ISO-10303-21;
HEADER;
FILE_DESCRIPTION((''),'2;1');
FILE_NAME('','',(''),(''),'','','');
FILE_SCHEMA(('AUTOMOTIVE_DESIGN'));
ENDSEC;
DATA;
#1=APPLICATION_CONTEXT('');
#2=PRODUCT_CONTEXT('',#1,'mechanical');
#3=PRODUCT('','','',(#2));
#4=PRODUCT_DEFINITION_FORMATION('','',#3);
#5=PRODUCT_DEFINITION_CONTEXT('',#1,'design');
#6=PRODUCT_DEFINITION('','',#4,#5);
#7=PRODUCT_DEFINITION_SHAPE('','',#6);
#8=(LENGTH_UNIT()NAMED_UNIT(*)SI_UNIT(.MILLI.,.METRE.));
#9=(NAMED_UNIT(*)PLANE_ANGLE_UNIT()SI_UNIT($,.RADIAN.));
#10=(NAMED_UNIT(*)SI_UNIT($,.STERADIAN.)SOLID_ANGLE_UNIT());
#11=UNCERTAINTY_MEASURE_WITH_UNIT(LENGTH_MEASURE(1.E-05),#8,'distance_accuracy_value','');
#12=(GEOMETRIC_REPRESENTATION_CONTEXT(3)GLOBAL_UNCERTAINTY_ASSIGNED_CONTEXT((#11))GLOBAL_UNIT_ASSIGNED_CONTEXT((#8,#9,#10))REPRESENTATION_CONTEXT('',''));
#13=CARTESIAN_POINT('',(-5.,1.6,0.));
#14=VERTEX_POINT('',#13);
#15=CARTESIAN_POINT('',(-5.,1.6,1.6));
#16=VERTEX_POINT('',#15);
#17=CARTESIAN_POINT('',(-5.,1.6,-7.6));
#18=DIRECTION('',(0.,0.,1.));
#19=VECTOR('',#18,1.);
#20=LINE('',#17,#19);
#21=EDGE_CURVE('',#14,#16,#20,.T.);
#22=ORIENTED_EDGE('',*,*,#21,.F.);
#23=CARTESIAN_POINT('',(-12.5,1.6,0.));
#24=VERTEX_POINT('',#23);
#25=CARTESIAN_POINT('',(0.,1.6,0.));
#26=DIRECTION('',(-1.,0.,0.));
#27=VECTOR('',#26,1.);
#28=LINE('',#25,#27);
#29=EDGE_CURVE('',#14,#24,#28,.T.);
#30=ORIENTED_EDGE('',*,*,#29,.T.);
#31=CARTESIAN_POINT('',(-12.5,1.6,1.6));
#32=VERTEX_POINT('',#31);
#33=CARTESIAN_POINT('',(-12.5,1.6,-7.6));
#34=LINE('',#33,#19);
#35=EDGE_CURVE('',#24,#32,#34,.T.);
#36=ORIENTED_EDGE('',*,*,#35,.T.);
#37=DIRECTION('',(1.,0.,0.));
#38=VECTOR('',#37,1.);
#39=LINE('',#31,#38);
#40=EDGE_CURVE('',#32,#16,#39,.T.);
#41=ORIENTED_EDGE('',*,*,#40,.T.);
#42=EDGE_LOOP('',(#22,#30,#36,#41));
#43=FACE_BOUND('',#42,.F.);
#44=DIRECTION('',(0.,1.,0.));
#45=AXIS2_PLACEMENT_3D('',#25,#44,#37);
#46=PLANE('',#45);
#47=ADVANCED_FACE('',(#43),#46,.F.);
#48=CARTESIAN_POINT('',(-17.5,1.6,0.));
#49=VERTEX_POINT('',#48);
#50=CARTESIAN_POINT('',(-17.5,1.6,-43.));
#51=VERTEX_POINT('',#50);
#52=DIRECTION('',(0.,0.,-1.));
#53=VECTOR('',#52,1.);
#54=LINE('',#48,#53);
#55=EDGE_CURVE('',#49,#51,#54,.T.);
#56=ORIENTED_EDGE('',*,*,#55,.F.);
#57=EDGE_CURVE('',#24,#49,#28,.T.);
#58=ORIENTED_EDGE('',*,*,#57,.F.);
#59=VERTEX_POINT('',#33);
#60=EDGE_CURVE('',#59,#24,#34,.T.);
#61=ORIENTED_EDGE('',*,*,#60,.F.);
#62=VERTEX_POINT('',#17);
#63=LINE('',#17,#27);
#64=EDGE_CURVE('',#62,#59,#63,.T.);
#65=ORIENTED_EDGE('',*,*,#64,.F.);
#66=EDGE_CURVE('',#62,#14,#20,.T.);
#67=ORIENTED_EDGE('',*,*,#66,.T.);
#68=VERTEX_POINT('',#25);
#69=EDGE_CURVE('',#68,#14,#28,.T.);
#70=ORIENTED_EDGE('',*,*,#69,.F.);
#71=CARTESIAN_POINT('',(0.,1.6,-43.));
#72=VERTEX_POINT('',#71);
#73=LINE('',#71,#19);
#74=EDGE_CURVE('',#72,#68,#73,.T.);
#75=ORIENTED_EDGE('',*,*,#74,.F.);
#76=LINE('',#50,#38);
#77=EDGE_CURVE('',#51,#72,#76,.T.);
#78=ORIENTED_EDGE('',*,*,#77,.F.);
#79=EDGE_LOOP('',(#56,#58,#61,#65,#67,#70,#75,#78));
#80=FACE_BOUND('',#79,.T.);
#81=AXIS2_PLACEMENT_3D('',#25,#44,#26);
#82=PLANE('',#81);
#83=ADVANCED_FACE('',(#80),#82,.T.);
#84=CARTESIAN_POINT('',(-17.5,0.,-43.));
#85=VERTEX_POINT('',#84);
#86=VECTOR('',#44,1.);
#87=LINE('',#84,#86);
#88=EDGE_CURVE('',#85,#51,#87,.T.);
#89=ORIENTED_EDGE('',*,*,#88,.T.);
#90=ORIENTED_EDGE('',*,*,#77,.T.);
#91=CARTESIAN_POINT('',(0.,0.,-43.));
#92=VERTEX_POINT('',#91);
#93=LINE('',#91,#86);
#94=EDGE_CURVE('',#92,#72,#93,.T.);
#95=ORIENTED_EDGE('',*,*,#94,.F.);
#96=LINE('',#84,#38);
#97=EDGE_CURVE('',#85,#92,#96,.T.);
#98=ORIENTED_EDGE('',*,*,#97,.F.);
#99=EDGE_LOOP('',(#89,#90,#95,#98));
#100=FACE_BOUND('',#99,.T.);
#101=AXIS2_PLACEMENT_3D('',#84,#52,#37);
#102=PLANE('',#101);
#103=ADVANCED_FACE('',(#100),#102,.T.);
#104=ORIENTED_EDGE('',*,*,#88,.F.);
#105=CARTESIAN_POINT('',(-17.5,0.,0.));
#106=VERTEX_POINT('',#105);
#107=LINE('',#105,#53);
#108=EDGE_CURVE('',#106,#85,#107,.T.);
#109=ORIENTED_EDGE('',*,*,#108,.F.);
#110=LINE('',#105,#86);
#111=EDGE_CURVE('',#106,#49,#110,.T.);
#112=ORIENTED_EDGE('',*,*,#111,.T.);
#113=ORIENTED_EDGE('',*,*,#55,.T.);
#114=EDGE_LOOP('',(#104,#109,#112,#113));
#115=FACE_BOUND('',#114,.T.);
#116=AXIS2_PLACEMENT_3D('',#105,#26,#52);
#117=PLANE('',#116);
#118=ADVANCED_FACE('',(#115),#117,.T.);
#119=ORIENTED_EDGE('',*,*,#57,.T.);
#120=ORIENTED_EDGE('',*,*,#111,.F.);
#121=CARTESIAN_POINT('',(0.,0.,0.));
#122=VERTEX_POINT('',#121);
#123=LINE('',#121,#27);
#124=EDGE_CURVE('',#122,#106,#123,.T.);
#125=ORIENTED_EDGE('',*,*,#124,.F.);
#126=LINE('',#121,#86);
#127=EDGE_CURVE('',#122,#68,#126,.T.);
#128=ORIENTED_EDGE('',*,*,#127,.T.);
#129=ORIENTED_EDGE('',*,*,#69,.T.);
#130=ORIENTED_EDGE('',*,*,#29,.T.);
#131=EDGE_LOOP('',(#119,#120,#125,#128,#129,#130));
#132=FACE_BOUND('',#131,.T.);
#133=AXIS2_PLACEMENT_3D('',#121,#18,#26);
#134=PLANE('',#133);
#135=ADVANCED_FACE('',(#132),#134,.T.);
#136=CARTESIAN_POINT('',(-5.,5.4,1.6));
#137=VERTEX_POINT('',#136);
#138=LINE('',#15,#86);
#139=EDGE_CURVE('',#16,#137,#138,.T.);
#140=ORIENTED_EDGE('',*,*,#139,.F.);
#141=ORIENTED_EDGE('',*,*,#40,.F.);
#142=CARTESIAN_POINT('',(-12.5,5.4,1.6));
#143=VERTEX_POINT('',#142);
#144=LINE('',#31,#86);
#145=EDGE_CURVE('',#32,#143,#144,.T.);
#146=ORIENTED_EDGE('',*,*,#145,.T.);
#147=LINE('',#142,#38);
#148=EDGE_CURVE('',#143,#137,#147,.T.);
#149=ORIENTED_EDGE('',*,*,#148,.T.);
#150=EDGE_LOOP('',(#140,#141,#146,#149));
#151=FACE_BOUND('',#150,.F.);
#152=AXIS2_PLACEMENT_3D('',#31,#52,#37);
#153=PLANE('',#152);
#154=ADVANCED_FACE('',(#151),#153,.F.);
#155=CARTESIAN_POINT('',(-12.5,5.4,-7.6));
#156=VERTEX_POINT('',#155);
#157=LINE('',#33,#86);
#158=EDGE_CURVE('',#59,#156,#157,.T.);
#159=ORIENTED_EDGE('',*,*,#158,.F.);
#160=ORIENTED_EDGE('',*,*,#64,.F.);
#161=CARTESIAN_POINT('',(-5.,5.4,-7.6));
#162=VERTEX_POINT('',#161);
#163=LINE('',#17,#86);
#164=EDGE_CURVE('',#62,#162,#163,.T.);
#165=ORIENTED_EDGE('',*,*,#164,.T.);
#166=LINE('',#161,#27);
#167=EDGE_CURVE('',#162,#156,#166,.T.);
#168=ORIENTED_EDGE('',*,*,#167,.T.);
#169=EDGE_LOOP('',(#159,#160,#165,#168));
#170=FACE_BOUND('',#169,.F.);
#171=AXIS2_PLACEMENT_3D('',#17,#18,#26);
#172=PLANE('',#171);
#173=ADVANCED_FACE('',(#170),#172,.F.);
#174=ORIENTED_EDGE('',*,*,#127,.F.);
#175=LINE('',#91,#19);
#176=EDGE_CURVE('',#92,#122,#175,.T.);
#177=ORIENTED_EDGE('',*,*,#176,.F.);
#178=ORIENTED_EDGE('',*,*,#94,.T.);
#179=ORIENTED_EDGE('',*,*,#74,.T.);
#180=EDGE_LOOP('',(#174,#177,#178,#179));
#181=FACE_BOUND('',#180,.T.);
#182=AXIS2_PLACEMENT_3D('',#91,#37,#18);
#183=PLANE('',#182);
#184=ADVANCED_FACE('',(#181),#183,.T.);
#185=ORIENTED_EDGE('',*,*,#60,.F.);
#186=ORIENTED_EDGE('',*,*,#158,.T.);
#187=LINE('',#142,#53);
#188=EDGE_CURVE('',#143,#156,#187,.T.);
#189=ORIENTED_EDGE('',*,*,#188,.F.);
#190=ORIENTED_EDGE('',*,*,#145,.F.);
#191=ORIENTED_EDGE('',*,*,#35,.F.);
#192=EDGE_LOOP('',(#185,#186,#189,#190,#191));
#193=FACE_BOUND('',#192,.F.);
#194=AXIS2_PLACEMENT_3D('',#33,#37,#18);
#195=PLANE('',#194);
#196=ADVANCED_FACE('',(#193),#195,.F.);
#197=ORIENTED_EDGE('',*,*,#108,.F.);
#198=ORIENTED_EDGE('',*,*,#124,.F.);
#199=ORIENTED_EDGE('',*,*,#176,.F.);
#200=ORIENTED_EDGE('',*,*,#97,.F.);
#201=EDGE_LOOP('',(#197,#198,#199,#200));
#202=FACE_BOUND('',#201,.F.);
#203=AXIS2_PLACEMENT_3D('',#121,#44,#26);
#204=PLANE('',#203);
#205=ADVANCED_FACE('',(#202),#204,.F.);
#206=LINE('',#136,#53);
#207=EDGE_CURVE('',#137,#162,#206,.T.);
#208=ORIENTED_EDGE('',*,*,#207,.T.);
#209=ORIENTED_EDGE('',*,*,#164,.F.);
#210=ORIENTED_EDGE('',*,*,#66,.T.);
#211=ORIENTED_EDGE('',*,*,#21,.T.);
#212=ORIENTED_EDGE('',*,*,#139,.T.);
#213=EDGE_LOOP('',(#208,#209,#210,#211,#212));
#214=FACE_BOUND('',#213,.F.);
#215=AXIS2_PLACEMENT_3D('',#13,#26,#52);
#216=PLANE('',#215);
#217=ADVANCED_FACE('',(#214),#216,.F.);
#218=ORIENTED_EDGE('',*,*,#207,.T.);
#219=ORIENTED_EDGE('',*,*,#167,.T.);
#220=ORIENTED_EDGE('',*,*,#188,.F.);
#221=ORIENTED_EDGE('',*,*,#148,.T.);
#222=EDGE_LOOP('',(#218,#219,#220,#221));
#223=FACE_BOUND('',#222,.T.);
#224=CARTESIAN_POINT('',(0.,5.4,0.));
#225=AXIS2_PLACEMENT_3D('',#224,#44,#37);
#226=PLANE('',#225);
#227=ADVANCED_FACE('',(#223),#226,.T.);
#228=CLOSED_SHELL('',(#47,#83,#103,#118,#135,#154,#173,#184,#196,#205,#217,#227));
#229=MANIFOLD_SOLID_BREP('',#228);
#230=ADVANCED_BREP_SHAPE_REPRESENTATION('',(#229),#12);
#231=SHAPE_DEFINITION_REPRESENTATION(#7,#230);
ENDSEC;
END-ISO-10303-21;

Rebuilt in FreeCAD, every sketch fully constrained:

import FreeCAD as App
import Part
import Sketcher

doc = App.newDocument("Part")
body = doc.addObject("PartDesign::Body", "Body")

# Sketch on XZ plane
sketch1 = body.newObject("Sketcher::SketchObject", "Sketch")
sketch1.AttachmentSupport = (doc.getObject("XZ_Plane"), [""])
sketch1.MapMode = "FlatFace"
sketch1.addGeometry([
    Part.LineSegment(App.Vector(-18, 0, 0), App.Vector(0, 0, 0)),
    Part.LineSegment(App.Vector(0, 0, 0), App.Vector(0, -43, 0)),
    Part.LineSegment(App.Vector(0, -43, 0), App.Vector(-18, -43, 0)),
    Part.LineSegment(App.Vector(-18, -43, 0), App.Vector(-18, 0, 0)),
], False)
sketch1.addConstraint([
    Sketcher.Constraint("Coincident", 0, 2, 1, 1),
    Sketcher.Constraint("Coincident", 1, 2, 2, 1),
    Sketcher.Constraint("Coincident", 2, 2, 3, 1),
    Sketcher.Constraint("Coincident", 3, 2, 0, 1),
    Sketcher.Constraint("Horizontal", 0),
    Sketcher.Constraint("Vertical", 1),
    Sketcher.Constraint("Horizontal", 2),
    Sketcher.Constraint("Vertical", 3),
    Sketcher.Constraint("Coincident", 0, 2, -1, 1),
    Sketcher.Constraint("DistanceY", 1, 2, 1, 1, 43.0),
    Sketcher.Constraint("DistanceX", 0, 1, 0, 2, 17.5),
])
pad1 = body.newObject("PartDesign::Pad", "Pad")
pad1.Profile = sketch1
pad1.Length = 1.6
pad1.Reversed = True

# Sketch on XZ plane
sketch2 = body.newObject("Sketcher::SketchObject", "Sketch001")
sketch2.AttachmentSupport = (doc.getObject("XZ_Plane"), [""])
sketch2.MapMode = "FlatFace"
sketch2.AttachmentOffset = App.Placement(App.Vector(0, 0, -1.6), App.Rotation())
sketch2.addGeometry([
    Part.LineSegment(App.Vector(-12, -8, 0), App.Vector(-12, 2, 0)),
    Part.LineSegment(App.Vector(-12, 2, 0), App.Vector(-5, 2, 0)),
    Part.LineSegment(App.Vector(-5, 2, 0), App.Vector(-5, -8, 0)),
    Part.LineSegment(App.Vector(-5, -8, 0), App.Vector(-12, -8, 0)),
], False)
sketch2.addConstraint([
    Sketcher.Constraint("Coincident", 0, 2, 1, 1),
    Sketcher.Constraint("Coincident", 1, 2, 2, 1),
    Sketcher.Constraint("Coincident", 2, 2, 3, 1),
    Sketcher.Constraint("Coincident", 3, 2, 0, 1),
    Sketcher.Constraint("Vertical", 0),
    Sketcher.Constraint("Horizontal", 1),
    Sketcher.Constraint("Vertical", 2),
    Sketcher.Constraint("Horizontal", 3),
    Sketcher.Constraint("DistanceX", 1, 1, 1, 2, 7.5),
    Sketcher.Constraint("DistanceY", 0, 1, 0, 2, 9.2),
    Sketcher.Constraint("DistanceY", -1, 1, 0, 2, 1.6),
    Sketcher.Constraint("DistanceX", 1, 2, -1, 1, 5.0),
])
pad2 = body.newObject("PartDesign::Pad", "Pad001")
pad2.Profile = sketch2
pad2.Length = 3.8
pad2.Reversed = True

doc.recompute()
